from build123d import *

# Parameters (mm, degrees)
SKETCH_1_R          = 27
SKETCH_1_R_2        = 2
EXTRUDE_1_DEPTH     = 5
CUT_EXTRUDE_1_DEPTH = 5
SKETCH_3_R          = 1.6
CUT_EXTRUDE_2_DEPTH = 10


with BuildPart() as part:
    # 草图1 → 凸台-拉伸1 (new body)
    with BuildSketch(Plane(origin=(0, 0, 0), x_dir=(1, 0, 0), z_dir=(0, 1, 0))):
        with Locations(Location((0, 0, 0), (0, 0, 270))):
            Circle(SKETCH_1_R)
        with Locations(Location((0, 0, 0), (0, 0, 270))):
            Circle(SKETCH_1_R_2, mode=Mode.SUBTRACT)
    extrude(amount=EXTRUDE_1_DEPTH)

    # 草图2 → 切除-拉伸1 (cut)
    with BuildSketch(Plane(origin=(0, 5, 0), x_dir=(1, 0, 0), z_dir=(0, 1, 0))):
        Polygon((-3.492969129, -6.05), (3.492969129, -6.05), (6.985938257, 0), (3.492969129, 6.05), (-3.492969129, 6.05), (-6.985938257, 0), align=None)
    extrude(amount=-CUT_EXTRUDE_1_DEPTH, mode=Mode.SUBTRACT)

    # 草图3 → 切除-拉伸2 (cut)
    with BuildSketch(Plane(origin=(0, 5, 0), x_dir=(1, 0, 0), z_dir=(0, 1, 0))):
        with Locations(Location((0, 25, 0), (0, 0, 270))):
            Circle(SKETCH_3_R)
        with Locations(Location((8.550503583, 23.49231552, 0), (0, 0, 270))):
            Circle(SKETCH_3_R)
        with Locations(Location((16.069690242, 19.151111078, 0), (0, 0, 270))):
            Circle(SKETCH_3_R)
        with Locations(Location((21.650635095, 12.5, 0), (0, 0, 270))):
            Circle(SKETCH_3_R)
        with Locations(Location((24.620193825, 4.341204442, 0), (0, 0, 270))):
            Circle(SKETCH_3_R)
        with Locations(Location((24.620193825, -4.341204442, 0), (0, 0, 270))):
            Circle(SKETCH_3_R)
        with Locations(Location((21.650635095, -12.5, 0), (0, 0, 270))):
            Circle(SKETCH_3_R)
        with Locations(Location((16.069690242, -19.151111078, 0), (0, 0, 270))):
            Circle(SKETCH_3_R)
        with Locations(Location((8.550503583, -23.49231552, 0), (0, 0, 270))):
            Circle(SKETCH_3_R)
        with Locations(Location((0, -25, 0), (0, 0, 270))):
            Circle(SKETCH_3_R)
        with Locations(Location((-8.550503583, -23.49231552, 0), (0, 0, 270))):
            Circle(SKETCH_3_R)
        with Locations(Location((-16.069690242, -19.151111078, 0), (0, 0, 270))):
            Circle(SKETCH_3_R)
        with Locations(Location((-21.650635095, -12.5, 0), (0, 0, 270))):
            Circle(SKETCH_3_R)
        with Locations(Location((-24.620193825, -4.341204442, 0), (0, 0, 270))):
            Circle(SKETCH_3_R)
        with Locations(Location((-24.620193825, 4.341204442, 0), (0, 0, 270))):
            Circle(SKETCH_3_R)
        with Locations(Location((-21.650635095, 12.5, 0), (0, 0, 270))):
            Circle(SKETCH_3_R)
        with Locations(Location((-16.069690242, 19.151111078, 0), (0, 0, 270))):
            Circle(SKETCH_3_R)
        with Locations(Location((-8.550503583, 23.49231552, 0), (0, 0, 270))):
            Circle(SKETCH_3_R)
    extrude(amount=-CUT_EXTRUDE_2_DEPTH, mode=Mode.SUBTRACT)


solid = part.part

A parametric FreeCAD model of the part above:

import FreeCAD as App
import Part
import Sketcher

V = App.Vector
Q = App.Units.Quantity


def add_polygon(sketch, points):
    """Adds a closed chain of lines whose ends are joined by coincident constraints."""
    first, n = sketch.GeometryCount, len(points)
    for a, b in zip(points, points[1:] + points[:1]):
        sketch.addGeometry(Part.LineSegment(App.Vector(*a, 0), App.Vector(*b, 0)), False)
    for i in range(n):
        sketch.addConstraint(Sketcher.Constraint("Coincident", first + i, 2, first + (i + 1) % n, 1))

doc = App.newDocument("Part")
params = doc.addObject("Spreadsheet::Sheet", "Params")
for row, (alias, value) in enumerate([
    ("sketch1_diameter", "54 mm"),
    ("sketch1_diameter2", "4 mm"),
    ("pad1_length", "5 mm"),
    ("pocket1_length", "5 mm"),
    ("sketch3_diameter", "3.2 mm"),
    ("pocket2_length", "10 mm"),
], start=1):
    params.set(f"A{row}", alias)
    params.set(f"B{row}", "=" + value)
    params.setAlias(f"B{row}", alias)

body = doc.addObject("PartDesign::Body", "Body")

sketch1 = body.newObject("Sketcher::SketchObject", "Sketch")
sketch1.AttachmentSupport = (doc.getObject("XZ_Plane"), [""])
sketch1.MapMode = "FlatFace"
sketch1.addGeometry([
    Part.Circle(V(0, 0, 0), V(0, 0, 1), 27),
    Part.Circle(V(0, 0, 0), V(0, 0, 1), 2),
], False)
sketch1.addConstraint([
    Sketcher.Constraint("Coincident", 0, 3, -1, 1),
    Sketcher.Constraint("Coincident", 1, 3, -1, 1),
    Sketcher.Constraint("Diameter", 0, 54.0),
    Sketcher.Constraint("Diameter", 1, 4.0),
])
sketch1.setExpression("Constraints[2]", "Params.sketch1_diameter")
sketch1.setExpression("Constraints[3]", "Params.sketch1_diameter2")
pad1 = body.newObject("PartDesign::Pad", "Pad")
pad1.Profile = sketch1
pad1.setExpression("Length", "Params.pad1_length")
pad1.Reversed = True

sketch2 = body.newObject("Sketcher::SketchObject", "Sketch001")
sketch2.AttachmentSupport = (doc.getObject("XZ_Plane"), [""])
sketch2.MapMode = "FlatFace"
sketch2.AttachmentOffset = App.Placement(V(0, 0, -5), App.Rotation())
add_polygon(sketch2, [(-3, 6), (3, 6), (7, 0), (3, -6), (-3, -6), (-7, 0)])
sketch2.addConstraint([
    Sketcher.Constraint("Horizontal", 0),
    Sketcher.Constraint("Horizontal", 3),
    Sketcher.Constraint("Symmetric", 0, 2, 3, 2, -1, 1),
    Sketcher.Constraint("Symmetric", 1, 2, 4, 2, -1, 1),
    Sketcher.Constraint("PointOnObject", 1, 2, -1),
    Sketcher.Constraint("Parallel", 2, 5),
    Sketcher.Constraint("Vertical", 0, 2, 2, 2),
    Sketcher.Constraint("Angle", 1, Q("-60 deg")),
    Sketcher.Constraint("DistanceY", 2, 2, 0, 2, 12.1),
    Sketcher.Constraint("DistanceX", 0, 1, 0, 2, 6.985938),
])
pocket1 = body.newObject("PartDesign::Pocket", "Pocket")
pocket1.Profile = sketch2
pocket1.setExpression("Length", "Params.pocket1_length")
pocket1.Reversed = True

sketch3 = body.newObject("Sketcher::SketchObject", "Sketch002")
sketch3.AttachmentSupport = (doc.getObject("XZ_Plane"), [""])
sketch3.MapMode = "FlatFace"
sketch3.AttachmentOffset = App.Placement(V(0, 0, -5), App.Rotation())
sketch3.addGeometry([
    Part.Circle(V(0, -25, 0), V(0, 0, 1), 1.6),
    Part.Circle(V(8.6, -23.5, 0), V(0, 0, 1), 1.6),
    Part.Circle(V(16.1, -19.2, 0), V(0, 0, 1), 1.6),
    Part.Circle(V(21.7, -12.5, 0), V(0, 0, 1), 1.6),
    Part.Circle(V(24.6, -4.3, 0), V(0, 0, 1), 1.6),
    Part.Circle(V(24.6, 4.3, 0), V(0, 0, 1), 1.6),
    Part.Circle(V(21.7, 12.5, 0), V(0, 0, 1), 1.6),
    Part.Circle(V(16.1, 19.2, 0), V(0, 0, 1), 1.6),
    Part.Circle(V(8.6, 23.5, 0), V(0, 0, 1), 1.6),
    Part.Circle(V(0, 25, 0), V(0, 0, 1), 1.6),
    Part.Circle(V(-8.6, 23.5, 0), V(0, 0, 1), 1.6),
    Part.Circle(V(-16.1, 19.2, 0), V(0, 0, 1), 1.6),
    Part.Circle(V(-21.7, 12.5, 0), V(0, 0, 1), 1.6),
    Part.Circle(V(-24.6, 4.3, 0), V(0, 0, 1), 1.6),
    Part.Circle(V(-24.6, -4.3, 0), V(0, 0, 1), 1.6),
    Part.Circle(V(-21.7, -12.5, 0), V(0, 0, 1), 1.6),
    Part.Circle(V(-16.1, -19.2, 0), V(0, 0, 1), 1.6),
    Part.Circle(V(-8.6, -23.5, 0), V(0, 0, 1), 1.6),
], False)
sketch3.addConstraint([
    Sketcher.Constraint("Equal", 0, 1),
    Sketcher.Constraint("Equal", 1, 2),
    Sketcher.Constraint("Equal", 2, 3),
    Sketcher.Constraint("Equal", 3, 4),
    Sketcher.Constraint("Equal", 4, 5),
    Sketcher.Constraint("Equal", 5, 6),
    Sketcher.Constraint("Equal", 6, 7),
    Sketcher.Constraint("Equal", 7, 8),
    Sketcher.Constraint("Equal", 8, 9),
    Sketcher.Constraint("Equal", 9, 10),
    Sketcher.Constraint("Equal", 10, 11),
    Sketcher.Constraint("Equal", 11, 12),
    Sketcher.Constraint("Equal", 12, 13),
    Sketcher.Constraint("Equal", 13, 14),
    Sketcher.Constraint("Equal", 14, 15),
    Sketcher.Constraint("Equal", 15, 16),
    Sketcher.Constraint("Equal", 16, 17),
    Sketcher.Constraint("Symmetric", 0, 3, 9, 3, -1, 1),
    Sketcher.Constraint("Symmetric", 1, 3, 10, 3, -1, 1),
    Sketcher.Constraint("Symmetric", 2, 3, 11, 3, -1, 1),
    Sketcher.Constraint("Symmetric", 3, 3, 12, 3, -1, 1),
    Sketcher.Constraint("Symmetric", 4, 3, 13, 3, -1, 1),
    Sketcher.Constraint("Symmetric", 5, 3, 14, 3, -1, 1),
    Sketcher.Constraint("Symmetric", 6, 3, 15, 3, -1, 1),
    Sketcher.Constraint("Symmetric", 7, 3, 16, 3, -1, 1),
    Sketcher.Constraint("Symmetric", 8, 3, 17, 3, -1, 1),
    Sketcher.Constraint("Symmetric", 8, 3, 10, 3, -2),
    Sketcher.Constraint("Symmetric", 7, 3, 11, 3, -2),
    Sketcher.Constraint("Symmetric", 6, 3, 12, 3, -2),
    Sketcher.Constraint("Symmetric", 5, 3, 13, 3, -2),
    Sketcher.Constraint("PointOnObject", 0, 3, -2),
    Sketcher.Constraint("Diameter", 0, 3.2),
    Sketcher.Constraint("DistanceY", 0, 3, -1, 1, 25.0),
    Sketcher.Constraint("DistanceY", 3, 3, 6, 3, 25.0),
    Sketcher.Constraint("DistanceX", -1, 1, 2, 3, 16.06969),
    Sketcher.Constraint("DistanceY", 2, 3, -1, 1, 19.151111),
    Sketcher.Constraint("DistanceX", 1, 3, 3, 3, 13.100132),
    Sketcher.Constraint("DistanceX", 3, 3, 4, 3, 2.969559),
    Sketcher.Constraint("DistanceY", 1, 3, 4, 3, 19.151111),
    Sketcher.Constraint("DistanceY", 4, 3, 5, 3, 8.682409),
    Sketcher.Constraint("DistanceX", 10, 3, 6, 3, 30.201139),
])
sketch3.setExpression("Constraints[31]", "Params.sketch3_diameter")
pocket2 = body.newObject("PartDesign::Pocket", "Pocket001")
pocket2.Profile = sketch3
pocket2.setExpression("Length", "Params.pocket2_length")
pocket2.Reversed = True

doc.recompute()
